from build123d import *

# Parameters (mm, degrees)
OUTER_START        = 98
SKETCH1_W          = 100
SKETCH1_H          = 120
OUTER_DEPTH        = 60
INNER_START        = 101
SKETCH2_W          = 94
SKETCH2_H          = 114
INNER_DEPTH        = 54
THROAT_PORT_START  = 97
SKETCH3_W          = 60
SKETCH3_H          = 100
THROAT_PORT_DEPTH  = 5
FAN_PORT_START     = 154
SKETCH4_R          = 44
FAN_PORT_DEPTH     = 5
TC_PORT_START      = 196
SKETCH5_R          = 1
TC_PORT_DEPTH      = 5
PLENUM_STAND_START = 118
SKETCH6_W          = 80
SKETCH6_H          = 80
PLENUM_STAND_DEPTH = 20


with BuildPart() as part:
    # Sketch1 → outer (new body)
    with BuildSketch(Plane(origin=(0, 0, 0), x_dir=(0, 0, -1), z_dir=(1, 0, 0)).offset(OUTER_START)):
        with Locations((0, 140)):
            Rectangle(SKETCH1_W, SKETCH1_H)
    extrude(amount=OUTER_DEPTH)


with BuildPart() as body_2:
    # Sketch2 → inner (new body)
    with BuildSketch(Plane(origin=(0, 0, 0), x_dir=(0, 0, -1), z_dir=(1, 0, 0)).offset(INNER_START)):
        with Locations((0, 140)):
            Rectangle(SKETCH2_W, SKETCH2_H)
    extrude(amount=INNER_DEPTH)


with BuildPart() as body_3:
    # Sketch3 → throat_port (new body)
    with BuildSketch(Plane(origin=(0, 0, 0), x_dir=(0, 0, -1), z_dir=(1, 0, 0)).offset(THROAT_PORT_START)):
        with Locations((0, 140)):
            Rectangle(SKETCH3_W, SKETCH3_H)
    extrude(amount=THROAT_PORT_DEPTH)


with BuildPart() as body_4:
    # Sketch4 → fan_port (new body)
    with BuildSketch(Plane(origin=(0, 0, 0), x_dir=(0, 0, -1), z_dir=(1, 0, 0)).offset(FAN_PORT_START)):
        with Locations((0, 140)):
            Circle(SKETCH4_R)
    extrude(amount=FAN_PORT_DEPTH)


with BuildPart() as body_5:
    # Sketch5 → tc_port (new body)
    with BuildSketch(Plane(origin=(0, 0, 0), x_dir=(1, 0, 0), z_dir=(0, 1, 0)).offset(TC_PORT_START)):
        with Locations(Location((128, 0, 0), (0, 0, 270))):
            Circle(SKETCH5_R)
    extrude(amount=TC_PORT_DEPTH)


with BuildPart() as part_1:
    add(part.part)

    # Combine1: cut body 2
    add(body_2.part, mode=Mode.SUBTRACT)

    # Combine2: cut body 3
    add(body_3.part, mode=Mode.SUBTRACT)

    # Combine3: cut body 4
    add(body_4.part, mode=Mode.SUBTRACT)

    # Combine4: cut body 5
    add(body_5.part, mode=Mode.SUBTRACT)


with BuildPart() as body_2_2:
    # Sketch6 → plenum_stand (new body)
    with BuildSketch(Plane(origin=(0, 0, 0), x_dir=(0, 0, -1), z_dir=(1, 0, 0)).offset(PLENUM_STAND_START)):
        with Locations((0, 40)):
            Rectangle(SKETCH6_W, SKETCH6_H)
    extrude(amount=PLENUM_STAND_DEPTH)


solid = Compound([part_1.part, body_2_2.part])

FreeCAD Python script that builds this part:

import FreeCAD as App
import Part
import Sketcher

doc = App.newDocument("Part")
body = doc.addObject("PartDesign::Body", "Body")

# Sketch on YZ plane
sketch1 = body.newObject("Sketcher::SketchObject", "Sketch")
sketch1.AttachmentSupport = (doc.getObject("YZ_Plane"), [""])
sketch1.MapMode = "FlatFace"
sketch1.AttachmentOffset = App.Placement(App.Vector(0, 0, 98), App.Rotation())
sketch1.addGeometry(Part.LineSegment(App.Vector(200, 50, 0), App.Vector(80, 50, 0)), False)
sketch1.addGeometry(Part.LineSegment(App.Vector(80, 50, 0), App.Vector(80, -50, 0)), False)
sketch1.addGeometry(Part.LineSegment(App.Vector(80, -50, 0), App.Vector(200, -50, 0)), False)
sketch1.addGeometry(Part.LineSegment(App.Vector(200, -50, 0), App.Vector(200, 50, 0)), False)
sketch1.addConstraint(Sketcher.Constraint("Coincident", 0, 2, 1, 1))
sketch1.addConstraint(Sketcher.Constraint("Coincident", 1, 2, 2, 1))
sketch1.addConstraint(Sketcher.Constraint("Coincident", 2, 2, 3, 1))
sketch1.addConstraint(Sketcher.Constraint("Coincident", 3, 2, 0, 1))
sketch1.addConstraint(Sketcher.Constraint("Horizontal", 0))
sketch1.addConstraint(Sketcher.Constraint("Vertical", 1))
sketch1.addConstraint(Sketcher.Constraint("Horizontal", 2))
sketch1.addConstraint(Sketcher.Constraint("Vertical", 3))
sketch1.addConstraint(Sketcher.Constraint("DistanceX", 0, 2, 0, 1, 120.0))
sketch1.addConstraint(Sketcher.Constraint("DistanceY", 1, 2, 1, 1, 100.0))
sketch1.addConstraint(Sketcher.Constraint("DistanceX", -1, 1, 0, 2, 80.0))
sketch1.addConstraint(Sketcher.Constraint("DistanceY", -1, 1, 0, 2, 50.0))
pad1 = body.newObject("PartDesign::Pad", "Pad")
pad1.Profile = sketch1
pad1.Length = 60
body2 = doc.addObject("PartDesign::Body", "Body001")

# Sketch on YZ plane
sketch2 = body2.newObject("Sketcher::SketchObject", "Sketch001")
sketch2.AttachmentSupport = (doc.getObject("YZ_Plane001"), [""])
sketch2.MapMode = "FlatFace"
sketch2.AttachmentOffset = App.Placement(App.Vector(0, 0, 101), App.Rotation())
sketch2.addGeometry(Part.LineSegment(App.Vector(197, 47, 0), App.Vector(83, 47, 0)), False)
sketch2.addGeometry(Part.LineSegment(App.Vector(83, 47, 0), App.Vector(83, -47, 0)), False)
sketch2.addGeometry(Part.LineSegment(App.Vector(83, -47, 0), App.Vector(197, -47, 0)), False)
sketch2.addGeometry(Part.LineSegment(App.Vector(197, -47, 0), App.Vector(197, 47, 0)), False)
sketch2.addConstraint(Sketcher.Constraint("Coincident", 0, 2, 1, 1))
sketch2.addConstraint(Sketcher.Constraint("Coincident", 1, 2, 2, 1))
sketch2.addConstraint(Sketcher.Constraint("Coincident", 2, 2, 3, 1))
sketch2.addConstraint(Sketcher.Constraint("Coincident", 3, 2, 0, 1))
sketch2.addConstraint(Sketcher.Constraint("Horizontal", 0))
sketch2.addConstraint(Sketcher.Constraint("Vertical", 1))
sketch2.addConstraint(Sketcher.Constraint("Horizontal", 2))
sketch2.addConstraint(Sketcher.Constraint("Vertical", 3))
sketch2.addConstraint(Sketcher.Constraint("DistanceX", 0, 2, 0, 1, 114.0))
sketch2.addConstraint(Sketcher.Constraint("DistanceY", 1, 2, 1, 1, 94.0))
sketch2.addConstraint(Sketcher.Constraint("DistanceX", -1, 1, 0, 2, 83.0))
sketch2.addConstraint(Sketcher.Constraint("DistanceY", -1, 1, 0, 2, 47.0))
pad2 = body2.newObject("PartDesign::Pad", "Pad001")
pad2.Profile = sketch2
pad2.Length = 54
body3 = doc.addObject("PartDesign::Body", "Body002")

# Sketch on YZ plane
sketch3 = body3.newObject("Sketcher::SketchObject", "Sketch002")
sketch3.AttachmentSupport = (doc.getObject("YZ_Plane002"), [""])
sketch3.MapMode = "FlatFace"
sketch3.AttachmentOffset = App.Placement(App.Vector(0, 0, 97), App.Rotation())
sketch3.addGeometry(Part.LineSegment(App.Vector(190, 30, 0), App.Vector(90, 30, 0)), False)
sketch3.addGeometry(Part.LineSegment(App.Vector(90, 30, 0), App.Vector(90, -30, 0)), False)
sketch3.addGeometry(Part.LineSegment(App.Vector(90, -30, 0), App.Vector(190, -30, 0)), False)
sketch3.addGeometry(Part.LineSegment(App.Vector(190, -30, 0), App.Vector(190, 30, 0)), False)
sketch3.addConstraint(Sketcher.Constraint("Coincident", 0, 2, 1, 1))
sketch3.addConstraint(Sketcher.Constraint("Coincident", 1, 2, 2, 1))
sketch3.addConstraint(Sketcher.Constraint("Coincident", 2, 2, 3, 1))
sketch3.addConstraint(Sketcher.Constraint("Coincident", 3, 2, 0, 1))
sketch3.addConstraint(Sketcher.Constraint("Horizontal", 0))
sketch3.addConstraint(Sketcher.Constraint("Vertical", 1))
sketch3.addConstraint(Sketcher.Constraint("Horizontal", 2))
sketch3.addConstraint(Sketcher.Constraint("Vertical", 3))
sketch3.addConstraint(Sketcher.Constraint("DistanceX", 0, 2, 0, 1, 100.0))
sketch3.addConstraint(Sketcher.Constraint("DistanceY", 1, 2, 1, 1, 60.0))
sketch3.addConstraint(Sketcher.Constraint("DistanceX", -1, 1, 0, 2, 90.0))
sketch3.addConstraint(Sketcher.Constraint("DistanceY", -1, 1, 0, 2, 30.0))
pad3 = body3.newObject("PartDesign::Pad", "Pad002")
pad3.Profile = sketch3
pad3.Length = 5
body4 = doc.addObject("PartDesign::Body", "Body003")

# Sketch on YZ plane
sketch4 = body4.newObject("Sketcher::SketchObject", "Sketch003")
sketch4.AttachmentSupport = (doc.getObject("YZ_Plane003"), [""])
sketch4.MapMode = "FlatFace"
sketch4.AttachmentOffset = App.Placement(App.Vector(0, 0, 154), App.Rotation())
sketch4.addGeometry(Part.Circle(App.Vector(140, 0, 0), App.Vector(0, 0, 1), 44), False)
sketch4.addConstraint(Sketcher.Constraint("PointOnObject", 0, 3, -1))
sketch4.addConstraint(Sketcher.Constraint("Diameter", 0, 88.0))
sketch4.addConstraint(Sketcher.Constraint("DistanceX", -1, 1, 0, 3, 140.0))
pad4 = body4.newObject("PartDesign::Pad", "Pad003")
pad4.Profile = sketch4
pad4.Length = 5
body5 = doc.addObject("PartDesign::Body", "Body004")

# Sketch on XZ plane
sketch5 = body5.newObject("Sketcher::SketchObject", "Sketch004")
sketch5.AttachmentSupport = (doc.getObject("XZ_Plane004"), [""])
sketch5.MapMode = "FlatFace"
sketch5.AttachmentOffset = App.Placement(App.Vector(0, 0, -196), App.Rotation())
sketch5.addGeometry(Part.Circle(App.Vector(128, 0, 0), App.Vector(0, 0, 1), 1), False)
sketch5.addConstraint(Sketcher.Constraint("PointOnObject", 0, 3, -1))
sketch5.addConstraint(Sketcher.Constraint("Diameter", 0, 2.0))
sketch5.addConstraint(Sketcher.Constraint("DistanceX", -1, 1, 0, 3, 128.0))
pad5 = body5.newObject("PartDesign::Pad", "Pad004")
pad5.Profile = sketch5
pad5.Length = 5
pad5.Reversed = True
doc.recompute()

boolean = body.newObject("PartDesign::Boolean", "Boolean")
boolean.Type = "Cut"
boolean.addObjects([body2])
doc.recompute()

boolean2 = body.newObject("PartDesign::Boolean", "Boolean001")
boolean2.Type = "Cut"
boolean2.addObjects([body3])
doc.recompute()

boolean3 = body.newObject("PartDesign::Boolean", "Boolean002")
boolean3.Type = "Cut"
boolean3.addObjects([body4])
doc.recompute()

boolean4 = body.newObject("PartDesign::Boolean", "Boolean003")
boolean4.Type = "Cut"
boolean4.addObjects([body5])
body6 = doc.addObject("PartDesign::Body", "Body005")

# Sketch on YZ plane
sketch6 = body6.newObject("Sketcher::SketchObject", "Sketch005")
sketch6.AttachmentSupport = (doc.getObject("YZ_Plane005"), [""])
sketch6.MapMode = "FlatFace"
sketch6.AttachmentOffset = App.Placement(App.Vector(0, 0, 118), App.Rotation())
sketch6.addGeometry(Part.LineSegment(App.Vector(80, 40, 0), App.Vector(0, 40, 0)), False)
sketch6.addGeometry(Part.LineSegment(App.Vector(0, 40, 0), App.Vector(0, -40, 0)), False)
sketch6.addGeometry(Part.LineSegment(App.Vector(0, -40, 0), App.Vector(80, -40, 0)), False)
sketch6.addGeometry(Part.LineSegment(App.Vector(80, -40, 0), App.Vector(80, 40, 0)), False)
sketch6.addConstraint(Sketcher.Constraint("Coincident", 0, 2, 1, 1))
sketch6.addConstraint(Sketcher.Constraint("Coincident", 1, 2, 2, 1))
sketch6.addConstraint(Sketcher.Constraint("Coincident", 2, 2, 3, 1))
sketch6.addConstraint(Sketcher.Constraint("Coincident", 3, 2, 0, 1))
sketch6.addConstraint(Sketcher.Constraint("Horizontal", 0))
sketch6.addConstraint(Sketcher.Constraint("Vertical", 1))
sketch6.addConstraint(Sketcher.Constraint("Horizontal", 2))
sketch6.addConstraint(Sketcher.Constraint("Vertical", 3))
sketch6.addConstraint(Sketcher.Constraint("Symmetric", 0, 2, 1, 2, -1, 1))
sketch6.addConstraint(Sketcher.Constraint("Equal", 2, 1))
sketch6.addConstraint(Sketcher.Constraint("DistanceX", 0, 2, 0, 1, 80.0))
pad6 = body6.newObject("PartDesign::Pad", "Pad005")
pad6.Profile = sketch6
pad6.Length = 20

doc.recompute()
